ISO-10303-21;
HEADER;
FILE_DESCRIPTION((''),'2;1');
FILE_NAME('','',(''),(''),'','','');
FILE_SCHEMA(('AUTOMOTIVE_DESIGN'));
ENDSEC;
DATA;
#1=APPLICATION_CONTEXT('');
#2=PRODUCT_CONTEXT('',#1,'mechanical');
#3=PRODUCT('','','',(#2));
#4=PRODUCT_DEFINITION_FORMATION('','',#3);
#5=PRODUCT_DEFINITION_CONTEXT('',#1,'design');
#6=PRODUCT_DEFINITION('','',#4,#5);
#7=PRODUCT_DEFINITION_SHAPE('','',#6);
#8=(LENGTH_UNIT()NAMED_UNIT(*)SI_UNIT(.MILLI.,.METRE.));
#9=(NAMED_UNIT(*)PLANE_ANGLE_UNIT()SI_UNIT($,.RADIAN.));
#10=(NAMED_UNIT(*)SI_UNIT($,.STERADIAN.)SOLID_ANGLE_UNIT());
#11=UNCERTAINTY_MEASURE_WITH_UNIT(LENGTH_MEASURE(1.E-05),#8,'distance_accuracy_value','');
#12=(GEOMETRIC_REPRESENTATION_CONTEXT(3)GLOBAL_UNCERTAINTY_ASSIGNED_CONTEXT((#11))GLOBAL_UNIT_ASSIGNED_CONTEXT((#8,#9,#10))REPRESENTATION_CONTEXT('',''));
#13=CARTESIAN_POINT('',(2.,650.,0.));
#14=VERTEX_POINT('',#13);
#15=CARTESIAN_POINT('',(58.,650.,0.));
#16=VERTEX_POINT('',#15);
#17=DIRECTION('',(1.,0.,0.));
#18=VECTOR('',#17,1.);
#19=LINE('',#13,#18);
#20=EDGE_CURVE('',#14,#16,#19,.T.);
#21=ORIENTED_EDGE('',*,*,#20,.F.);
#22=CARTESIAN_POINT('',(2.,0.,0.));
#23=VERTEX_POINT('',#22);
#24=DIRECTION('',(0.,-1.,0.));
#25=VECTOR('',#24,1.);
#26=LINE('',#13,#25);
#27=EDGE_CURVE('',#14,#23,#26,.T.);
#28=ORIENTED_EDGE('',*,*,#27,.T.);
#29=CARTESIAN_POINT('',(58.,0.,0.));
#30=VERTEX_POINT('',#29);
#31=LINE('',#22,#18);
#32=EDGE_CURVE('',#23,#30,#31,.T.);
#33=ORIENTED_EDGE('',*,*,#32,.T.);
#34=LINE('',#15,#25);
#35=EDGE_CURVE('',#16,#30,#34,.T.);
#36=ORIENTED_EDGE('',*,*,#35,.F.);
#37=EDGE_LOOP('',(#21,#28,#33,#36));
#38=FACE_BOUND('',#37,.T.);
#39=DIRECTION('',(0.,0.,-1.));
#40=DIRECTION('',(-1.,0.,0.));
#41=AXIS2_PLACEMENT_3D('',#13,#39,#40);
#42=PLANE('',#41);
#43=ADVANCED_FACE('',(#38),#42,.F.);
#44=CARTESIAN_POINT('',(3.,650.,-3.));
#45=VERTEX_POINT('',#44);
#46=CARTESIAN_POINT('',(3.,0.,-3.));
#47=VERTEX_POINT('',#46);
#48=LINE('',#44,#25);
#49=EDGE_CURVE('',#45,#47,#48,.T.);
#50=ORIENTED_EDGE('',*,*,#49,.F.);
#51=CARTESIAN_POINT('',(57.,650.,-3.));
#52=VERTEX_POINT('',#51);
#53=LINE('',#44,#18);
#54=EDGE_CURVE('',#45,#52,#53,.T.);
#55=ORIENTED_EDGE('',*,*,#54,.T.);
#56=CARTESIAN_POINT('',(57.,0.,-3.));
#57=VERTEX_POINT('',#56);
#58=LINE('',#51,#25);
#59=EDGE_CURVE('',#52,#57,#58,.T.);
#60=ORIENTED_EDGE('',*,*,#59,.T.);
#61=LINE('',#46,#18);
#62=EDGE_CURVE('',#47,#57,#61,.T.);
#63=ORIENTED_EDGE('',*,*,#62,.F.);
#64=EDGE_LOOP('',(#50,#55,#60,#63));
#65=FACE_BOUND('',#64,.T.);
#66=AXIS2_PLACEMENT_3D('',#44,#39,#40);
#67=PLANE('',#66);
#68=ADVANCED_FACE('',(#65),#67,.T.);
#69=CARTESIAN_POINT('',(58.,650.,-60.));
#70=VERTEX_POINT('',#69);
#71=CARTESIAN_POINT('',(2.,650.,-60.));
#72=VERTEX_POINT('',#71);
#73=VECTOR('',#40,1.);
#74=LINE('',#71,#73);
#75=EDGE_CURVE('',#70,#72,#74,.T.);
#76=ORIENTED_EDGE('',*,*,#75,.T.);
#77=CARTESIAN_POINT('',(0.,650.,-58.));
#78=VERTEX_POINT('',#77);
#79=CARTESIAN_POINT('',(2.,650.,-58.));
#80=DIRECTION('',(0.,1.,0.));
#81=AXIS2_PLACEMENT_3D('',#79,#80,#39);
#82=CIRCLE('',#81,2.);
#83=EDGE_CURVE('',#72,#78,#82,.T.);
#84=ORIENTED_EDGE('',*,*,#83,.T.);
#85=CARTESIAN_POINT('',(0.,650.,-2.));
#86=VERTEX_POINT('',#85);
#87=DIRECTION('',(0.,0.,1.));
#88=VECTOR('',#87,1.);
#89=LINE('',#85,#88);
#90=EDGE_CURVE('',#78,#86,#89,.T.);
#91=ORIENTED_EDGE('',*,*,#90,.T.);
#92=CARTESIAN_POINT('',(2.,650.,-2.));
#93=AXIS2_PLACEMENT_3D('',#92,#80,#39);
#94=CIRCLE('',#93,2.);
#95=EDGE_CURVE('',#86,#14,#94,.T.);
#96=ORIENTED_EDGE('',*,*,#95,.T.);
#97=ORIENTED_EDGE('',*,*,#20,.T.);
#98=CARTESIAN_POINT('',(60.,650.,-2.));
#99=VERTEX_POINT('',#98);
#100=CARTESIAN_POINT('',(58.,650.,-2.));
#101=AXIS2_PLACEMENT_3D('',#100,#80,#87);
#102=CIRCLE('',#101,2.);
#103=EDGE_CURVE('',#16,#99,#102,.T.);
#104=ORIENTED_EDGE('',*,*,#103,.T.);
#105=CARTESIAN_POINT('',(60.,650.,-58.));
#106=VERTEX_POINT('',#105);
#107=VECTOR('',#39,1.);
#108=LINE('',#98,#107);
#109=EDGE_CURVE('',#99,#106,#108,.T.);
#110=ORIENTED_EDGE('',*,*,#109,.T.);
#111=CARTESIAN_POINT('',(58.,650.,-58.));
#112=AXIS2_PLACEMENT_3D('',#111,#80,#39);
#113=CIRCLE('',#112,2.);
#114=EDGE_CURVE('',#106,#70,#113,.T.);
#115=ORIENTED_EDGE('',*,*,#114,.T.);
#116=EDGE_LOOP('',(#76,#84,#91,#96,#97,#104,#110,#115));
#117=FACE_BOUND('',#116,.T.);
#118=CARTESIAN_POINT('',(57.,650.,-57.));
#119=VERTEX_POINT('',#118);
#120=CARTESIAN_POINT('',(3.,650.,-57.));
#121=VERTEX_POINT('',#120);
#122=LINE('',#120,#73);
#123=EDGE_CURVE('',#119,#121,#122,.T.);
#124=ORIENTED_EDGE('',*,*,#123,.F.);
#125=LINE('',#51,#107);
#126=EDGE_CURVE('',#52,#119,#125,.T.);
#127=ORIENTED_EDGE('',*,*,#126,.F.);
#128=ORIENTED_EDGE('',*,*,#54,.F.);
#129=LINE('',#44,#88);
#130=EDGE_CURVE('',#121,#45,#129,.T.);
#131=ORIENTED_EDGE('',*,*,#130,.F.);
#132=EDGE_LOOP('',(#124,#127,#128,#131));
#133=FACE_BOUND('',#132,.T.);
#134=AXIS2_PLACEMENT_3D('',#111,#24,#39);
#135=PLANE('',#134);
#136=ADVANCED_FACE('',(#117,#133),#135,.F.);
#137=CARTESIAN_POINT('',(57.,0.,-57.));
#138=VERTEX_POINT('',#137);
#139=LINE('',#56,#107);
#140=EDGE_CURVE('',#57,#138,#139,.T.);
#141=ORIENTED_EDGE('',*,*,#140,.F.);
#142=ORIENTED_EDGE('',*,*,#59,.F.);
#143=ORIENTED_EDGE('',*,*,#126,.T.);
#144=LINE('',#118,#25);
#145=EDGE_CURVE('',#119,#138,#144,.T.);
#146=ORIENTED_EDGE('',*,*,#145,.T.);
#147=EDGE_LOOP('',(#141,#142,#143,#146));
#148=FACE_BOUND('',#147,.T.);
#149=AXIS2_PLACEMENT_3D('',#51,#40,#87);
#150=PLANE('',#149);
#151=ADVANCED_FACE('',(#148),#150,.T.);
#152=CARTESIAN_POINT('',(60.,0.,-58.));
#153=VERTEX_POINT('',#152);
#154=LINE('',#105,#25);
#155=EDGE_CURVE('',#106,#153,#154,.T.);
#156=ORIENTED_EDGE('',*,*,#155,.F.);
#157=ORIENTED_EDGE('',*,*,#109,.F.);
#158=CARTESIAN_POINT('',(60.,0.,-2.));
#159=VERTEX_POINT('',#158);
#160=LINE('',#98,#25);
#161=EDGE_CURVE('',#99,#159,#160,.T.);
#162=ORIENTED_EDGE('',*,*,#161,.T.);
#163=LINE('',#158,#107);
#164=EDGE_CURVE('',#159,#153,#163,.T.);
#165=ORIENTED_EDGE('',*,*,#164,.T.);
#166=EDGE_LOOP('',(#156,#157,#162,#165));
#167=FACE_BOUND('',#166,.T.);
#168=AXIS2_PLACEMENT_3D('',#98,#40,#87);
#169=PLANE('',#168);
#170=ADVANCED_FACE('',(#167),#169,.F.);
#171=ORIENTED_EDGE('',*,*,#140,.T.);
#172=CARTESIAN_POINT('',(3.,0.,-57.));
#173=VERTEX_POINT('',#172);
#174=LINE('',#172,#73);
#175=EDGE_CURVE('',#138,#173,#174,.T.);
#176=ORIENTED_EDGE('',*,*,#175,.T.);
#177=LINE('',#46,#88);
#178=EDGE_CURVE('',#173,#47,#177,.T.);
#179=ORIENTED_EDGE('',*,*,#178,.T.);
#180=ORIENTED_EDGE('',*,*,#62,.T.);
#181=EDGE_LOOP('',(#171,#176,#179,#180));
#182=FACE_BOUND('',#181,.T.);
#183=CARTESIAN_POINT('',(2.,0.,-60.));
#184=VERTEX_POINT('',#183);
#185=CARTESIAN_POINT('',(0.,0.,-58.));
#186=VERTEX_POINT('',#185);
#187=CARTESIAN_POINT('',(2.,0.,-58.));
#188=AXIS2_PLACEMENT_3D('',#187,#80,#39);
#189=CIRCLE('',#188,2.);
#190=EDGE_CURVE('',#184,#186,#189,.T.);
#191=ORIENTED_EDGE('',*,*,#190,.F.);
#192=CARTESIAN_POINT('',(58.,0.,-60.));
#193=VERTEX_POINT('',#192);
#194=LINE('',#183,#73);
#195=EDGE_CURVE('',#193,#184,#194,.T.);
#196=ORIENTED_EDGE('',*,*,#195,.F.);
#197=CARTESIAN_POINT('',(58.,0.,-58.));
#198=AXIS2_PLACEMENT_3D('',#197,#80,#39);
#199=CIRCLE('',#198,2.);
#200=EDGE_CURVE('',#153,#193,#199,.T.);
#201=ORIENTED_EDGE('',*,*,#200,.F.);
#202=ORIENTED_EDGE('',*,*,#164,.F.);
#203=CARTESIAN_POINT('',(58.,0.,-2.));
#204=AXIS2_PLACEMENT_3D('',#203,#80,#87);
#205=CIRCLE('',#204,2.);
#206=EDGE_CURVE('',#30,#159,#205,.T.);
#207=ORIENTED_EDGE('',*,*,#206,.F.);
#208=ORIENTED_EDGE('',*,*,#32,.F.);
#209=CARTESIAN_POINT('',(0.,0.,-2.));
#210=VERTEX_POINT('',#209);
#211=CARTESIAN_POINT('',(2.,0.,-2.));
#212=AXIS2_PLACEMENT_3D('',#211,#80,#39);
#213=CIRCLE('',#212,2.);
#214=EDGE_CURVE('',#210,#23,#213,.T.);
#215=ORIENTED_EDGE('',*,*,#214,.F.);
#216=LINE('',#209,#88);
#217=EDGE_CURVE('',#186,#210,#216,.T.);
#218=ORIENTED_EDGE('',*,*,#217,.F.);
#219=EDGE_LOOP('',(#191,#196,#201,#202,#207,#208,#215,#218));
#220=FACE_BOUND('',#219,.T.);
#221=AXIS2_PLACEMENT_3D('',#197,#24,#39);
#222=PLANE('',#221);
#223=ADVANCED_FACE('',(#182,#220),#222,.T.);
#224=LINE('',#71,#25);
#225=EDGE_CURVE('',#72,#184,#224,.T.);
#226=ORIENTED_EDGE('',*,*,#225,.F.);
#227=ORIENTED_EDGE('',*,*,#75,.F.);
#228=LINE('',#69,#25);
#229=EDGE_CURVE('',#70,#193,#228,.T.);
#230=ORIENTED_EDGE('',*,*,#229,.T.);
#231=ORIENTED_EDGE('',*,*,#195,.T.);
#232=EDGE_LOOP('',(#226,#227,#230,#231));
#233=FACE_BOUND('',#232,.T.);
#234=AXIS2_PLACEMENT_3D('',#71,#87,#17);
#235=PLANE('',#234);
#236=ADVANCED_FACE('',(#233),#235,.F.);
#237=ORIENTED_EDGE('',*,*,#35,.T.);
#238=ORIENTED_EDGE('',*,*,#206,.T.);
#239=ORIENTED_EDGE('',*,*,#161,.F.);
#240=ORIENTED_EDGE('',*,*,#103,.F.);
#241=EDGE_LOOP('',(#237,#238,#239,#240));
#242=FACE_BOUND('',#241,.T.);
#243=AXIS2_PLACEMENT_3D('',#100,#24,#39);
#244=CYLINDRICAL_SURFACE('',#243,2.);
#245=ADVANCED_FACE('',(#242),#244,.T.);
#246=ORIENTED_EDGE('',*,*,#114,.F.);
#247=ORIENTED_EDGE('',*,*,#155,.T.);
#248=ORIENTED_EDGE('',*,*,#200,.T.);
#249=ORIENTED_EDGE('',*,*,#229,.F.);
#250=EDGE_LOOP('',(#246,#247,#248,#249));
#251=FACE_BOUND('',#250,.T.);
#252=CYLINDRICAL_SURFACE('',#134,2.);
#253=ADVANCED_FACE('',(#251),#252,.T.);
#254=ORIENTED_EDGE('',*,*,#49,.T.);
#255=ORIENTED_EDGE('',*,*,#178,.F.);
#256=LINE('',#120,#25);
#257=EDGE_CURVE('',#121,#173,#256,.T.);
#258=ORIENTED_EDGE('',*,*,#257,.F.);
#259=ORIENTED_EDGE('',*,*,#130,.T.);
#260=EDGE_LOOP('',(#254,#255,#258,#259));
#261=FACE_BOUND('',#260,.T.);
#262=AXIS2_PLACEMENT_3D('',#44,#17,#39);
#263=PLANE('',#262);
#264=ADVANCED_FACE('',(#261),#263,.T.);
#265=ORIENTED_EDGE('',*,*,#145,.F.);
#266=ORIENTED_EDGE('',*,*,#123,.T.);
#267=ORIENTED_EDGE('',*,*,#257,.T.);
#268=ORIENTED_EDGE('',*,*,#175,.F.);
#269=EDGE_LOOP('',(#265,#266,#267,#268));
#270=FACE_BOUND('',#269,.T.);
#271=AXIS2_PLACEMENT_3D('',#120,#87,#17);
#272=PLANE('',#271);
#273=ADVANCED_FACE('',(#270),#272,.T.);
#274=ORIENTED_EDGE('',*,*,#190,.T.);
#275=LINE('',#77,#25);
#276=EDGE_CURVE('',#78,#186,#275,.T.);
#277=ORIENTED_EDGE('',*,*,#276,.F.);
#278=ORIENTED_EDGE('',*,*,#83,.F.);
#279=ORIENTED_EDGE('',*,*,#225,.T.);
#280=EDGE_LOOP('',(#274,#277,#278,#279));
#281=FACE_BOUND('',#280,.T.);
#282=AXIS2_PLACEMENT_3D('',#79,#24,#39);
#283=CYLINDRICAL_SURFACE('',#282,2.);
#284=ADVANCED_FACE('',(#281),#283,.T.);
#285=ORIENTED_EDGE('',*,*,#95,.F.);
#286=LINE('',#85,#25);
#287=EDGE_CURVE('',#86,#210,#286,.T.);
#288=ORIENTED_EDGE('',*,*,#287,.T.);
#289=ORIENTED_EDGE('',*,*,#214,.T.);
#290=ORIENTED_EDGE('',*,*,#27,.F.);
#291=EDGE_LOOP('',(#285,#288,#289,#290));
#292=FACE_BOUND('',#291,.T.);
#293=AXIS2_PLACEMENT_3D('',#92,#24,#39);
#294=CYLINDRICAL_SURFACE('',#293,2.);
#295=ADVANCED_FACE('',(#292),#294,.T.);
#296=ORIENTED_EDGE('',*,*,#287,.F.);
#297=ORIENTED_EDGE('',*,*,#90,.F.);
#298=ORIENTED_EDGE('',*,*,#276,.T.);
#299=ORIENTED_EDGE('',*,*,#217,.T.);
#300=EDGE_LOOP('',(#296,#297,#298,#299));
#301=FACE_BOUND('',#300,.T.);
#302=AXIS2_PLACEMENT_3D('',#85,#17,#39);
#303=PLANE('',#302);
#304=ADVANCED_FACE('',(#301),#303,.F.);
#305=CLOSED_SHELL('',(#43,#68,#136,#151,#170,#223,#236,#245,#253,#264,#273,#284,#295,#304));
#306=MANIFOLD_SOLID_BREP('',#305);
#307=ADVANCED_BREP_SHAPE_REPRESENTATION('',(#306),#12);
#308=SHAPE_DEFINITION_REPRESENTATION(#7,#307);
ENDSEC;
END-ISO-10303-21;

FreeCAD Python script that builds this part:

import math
import FreeCAD as App
import Part
import Sketcher

V = App.Vector
Q = App.Units.Quantity


def add_polygon(sketch, points):
    """Adds a closed chain of lines whose ends are joined by coincident constraints."""
    first, n = sketch.GeometryCount, len(points)
    for a, b in zip(points, points[1:] + points[:1]):
        sketch.addGeometry(Part.LineSegment(App.Vector(*a, 0), App.Vector(*b, 0)), False)
    for i in range(n):
        sketch.addConstraint(Sketcher.Constraint("Coincident", first + i, 2, first + (i + 1) % n, 1))

doc = App.newDocument("Part")
body = doc.addObject("PartDesign::Body", "Body")

sketch1 = body.newObject("Sketcher::SketchObject", "Sketch")
sketch1.AttachmentSupport = (doc.getObject("XZ_Plane"), [""])
sketch1.MapMode = "FlatFace"
sketch1.addGeometry(Part.LineSegment(V(2, 0, 0), V(58, 0, 0)), False)
sketch1.addGeometry(Part.ArcOfCircle(Part.Circle(V(58, -2, 0), V(0, 0, 1), 2), math.radians(0), math.radians(90)), False)
sketch1.addGeometry(Part.LineSegment(V(60, -2, 0), V(60, -58, 0)), False)
sketch1.addGeometry(Part.ArcOfCircle(Part.Circle(V(58, -58, 0), V(0, 0, 1), 2), math.radians(-90), math.radians(0)), False)
sketch1.addGeometry(Part.LineSegment(V(58, -60, 0), V(2, -60, 0)), False)
sketch1.addGeometry(Part.ArcOfCircle(Part.Circle(V(2, -58, 0), V(0, 0, 1), 2), math.radians(-180), math.radians(-90)), False)
sketch1.addGeometry(Part.LineSegment(V(0, -58, 0), V(0, -2, 0)), False)
sketch1.addGeometry(Part.ArcOfCircle(Part.Circle(V(2, -2, 0), V(0, 0, 1), 2), math.radians(90), math.radians(180)), False)
add_polygon(sketch1, [(57, -3), (3, -3), (3, -57), (57, -57)])
sketch1.addConstraint(Sketcher.Constraint("Tangent", 0, 2, 1, 2))
sketch1.addConstraint(Sketcher.Constraint("Tangent", 1, 1, 2, 1))
sketch1.addConstraint(Sketcher.Constraint("Tangent", 2, 2, 3, 2))
sketch1.addConstraint(Sketcher.Constraint("Tangent", 3, 1, 4, 1))
sketch1.addConstraint(Sketcher.Constraint("Tangent", 4, 2, 5, 2))
sketch1.addConstraint(Sketcher.Constraint("Tangent", 5, 1, 6, 1))
sketch1.addConstraint(Sketcher.Constraint("Tangent", 6, 2, 7, 2))
sketch1.addConstraint(Sketcher.Constraint("Tangent", 7, 1, 0, 1))
sketch1.addConstraint(Sketcher.Constraint("Horizontal", 0))
sketch1.addConstraint(Sketcher.Constraint("Vertical", 2))
sketch1.addConstraint(Sketcher.Constraint("Horizontal", 4))
sketch1.addConstraint(Sketcher.Constraint("Vertical", 6))
sketch1.addConstraint(Sketcher.Constraint("Horizontal", 8))
sketch1.addConstraint(Sketcher.Constraint("Vertical", 9))
sketch1.addConstraint(Sketcher.Constraint("Horizontal", 10))
sketch1.addConstraint(Sketcher.Constraint("Vertical", 11))
sketch1.addConstraint(Sketcher.Constraint("Equal", 1, 3))
sketch1.addConstraint(Sketcher.Constraint("Equal", 3, 5))
sketch1.addConstraint(Sketcher.Constraint("Equal", 5, 7))
sketch1.addConstraint(Sketcher.Constraint("PointOnObject", 0, 2, -1))
sketch1.addConstraint(Sketcher.Constraint("PointOnObject", 5, 1, -2))
sketch1.addConstraint(Sketcher.Constraint("Equal", 4, 2))
sketch1.addConstraint(Sketcher.Constraint("Equal", 10, 9))
sketch1.addConstraint(Sketcher.Constraint("Radius", 1, Q("2 mm")))
sketch1.addConstraint(Sketcher.Constraint("DistanceX", 0, 1, 0, 2, Q("56 mm")))
sketch1.addConstraint(Sketcher.Constraint("DistanceX", 8, 2, 8, 1, Q("54 mm")))
sketch1.addConstraint(Sketcher.Constraint("DistanceX", -1, 1, 8, 2, Q("3 mm")))
sketch1.addConstraint(Sketcher.Constraint("DistanceY", 8, 2, -1, 1, Q("3 mm")))
pad1 = body.newObject("PartDesign::Pad", "Pad")
pad1.Profile = sketch1
pad1.Length = 650
pad1.Reversed = True

doc.recompute()
